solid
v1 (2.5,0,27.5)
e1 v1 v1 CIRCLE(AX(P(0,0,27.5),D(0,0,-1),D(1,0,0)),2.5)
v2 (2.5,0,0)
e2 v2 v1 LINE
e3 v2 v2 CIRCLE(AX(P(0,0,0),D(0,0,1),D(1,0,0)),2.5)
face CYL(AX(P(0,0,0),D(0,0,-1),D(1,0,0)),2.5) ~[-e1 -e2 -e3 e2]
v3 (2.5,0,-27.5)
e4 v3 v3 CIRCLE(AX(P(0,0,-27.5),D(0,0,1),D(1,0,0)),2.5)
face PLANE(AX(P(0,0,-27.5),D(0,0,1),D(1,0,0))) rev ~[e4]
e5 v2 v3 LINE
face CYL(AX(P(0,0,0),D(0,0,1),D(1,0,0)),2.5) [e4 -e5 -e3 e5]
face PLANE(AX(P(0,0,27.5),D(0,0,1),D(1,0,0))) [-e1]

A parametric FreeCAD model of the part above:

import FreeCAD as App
import Part
import Sketcher
from FreeCAD import Vector
Q = App.Units.Quantity

doc = App.newDocument("Part")
body = doc.addObject("PartDesign::Body", "Body")

# Sketch on XY plane
sketch1 = body.newObject("Sketcher::SketchObject", "Sketch")
sketch1.AttachmentSupport = (doc.getObject("XY_Plane"), [""])
sketch1.MapMode = "FlatFace"
sketch1.addGeometry(Part.Circle(Vector(0, 0, 0), Vector(0, 0, 1), 2.5), False)
sketch1.addConstraint([
    Sketcher.Constraint("Coincident", 0, 3, -1, 1),
    Sketcher.Constraint("Diameter", 0, Q("5 mm")),
])
pad1 = body.newObject("PartDesign::Pad", "Pad")
pad1.Profile = sketch1
pad1.Length = 55
pad1.Midplane = True

doc.recompute()
